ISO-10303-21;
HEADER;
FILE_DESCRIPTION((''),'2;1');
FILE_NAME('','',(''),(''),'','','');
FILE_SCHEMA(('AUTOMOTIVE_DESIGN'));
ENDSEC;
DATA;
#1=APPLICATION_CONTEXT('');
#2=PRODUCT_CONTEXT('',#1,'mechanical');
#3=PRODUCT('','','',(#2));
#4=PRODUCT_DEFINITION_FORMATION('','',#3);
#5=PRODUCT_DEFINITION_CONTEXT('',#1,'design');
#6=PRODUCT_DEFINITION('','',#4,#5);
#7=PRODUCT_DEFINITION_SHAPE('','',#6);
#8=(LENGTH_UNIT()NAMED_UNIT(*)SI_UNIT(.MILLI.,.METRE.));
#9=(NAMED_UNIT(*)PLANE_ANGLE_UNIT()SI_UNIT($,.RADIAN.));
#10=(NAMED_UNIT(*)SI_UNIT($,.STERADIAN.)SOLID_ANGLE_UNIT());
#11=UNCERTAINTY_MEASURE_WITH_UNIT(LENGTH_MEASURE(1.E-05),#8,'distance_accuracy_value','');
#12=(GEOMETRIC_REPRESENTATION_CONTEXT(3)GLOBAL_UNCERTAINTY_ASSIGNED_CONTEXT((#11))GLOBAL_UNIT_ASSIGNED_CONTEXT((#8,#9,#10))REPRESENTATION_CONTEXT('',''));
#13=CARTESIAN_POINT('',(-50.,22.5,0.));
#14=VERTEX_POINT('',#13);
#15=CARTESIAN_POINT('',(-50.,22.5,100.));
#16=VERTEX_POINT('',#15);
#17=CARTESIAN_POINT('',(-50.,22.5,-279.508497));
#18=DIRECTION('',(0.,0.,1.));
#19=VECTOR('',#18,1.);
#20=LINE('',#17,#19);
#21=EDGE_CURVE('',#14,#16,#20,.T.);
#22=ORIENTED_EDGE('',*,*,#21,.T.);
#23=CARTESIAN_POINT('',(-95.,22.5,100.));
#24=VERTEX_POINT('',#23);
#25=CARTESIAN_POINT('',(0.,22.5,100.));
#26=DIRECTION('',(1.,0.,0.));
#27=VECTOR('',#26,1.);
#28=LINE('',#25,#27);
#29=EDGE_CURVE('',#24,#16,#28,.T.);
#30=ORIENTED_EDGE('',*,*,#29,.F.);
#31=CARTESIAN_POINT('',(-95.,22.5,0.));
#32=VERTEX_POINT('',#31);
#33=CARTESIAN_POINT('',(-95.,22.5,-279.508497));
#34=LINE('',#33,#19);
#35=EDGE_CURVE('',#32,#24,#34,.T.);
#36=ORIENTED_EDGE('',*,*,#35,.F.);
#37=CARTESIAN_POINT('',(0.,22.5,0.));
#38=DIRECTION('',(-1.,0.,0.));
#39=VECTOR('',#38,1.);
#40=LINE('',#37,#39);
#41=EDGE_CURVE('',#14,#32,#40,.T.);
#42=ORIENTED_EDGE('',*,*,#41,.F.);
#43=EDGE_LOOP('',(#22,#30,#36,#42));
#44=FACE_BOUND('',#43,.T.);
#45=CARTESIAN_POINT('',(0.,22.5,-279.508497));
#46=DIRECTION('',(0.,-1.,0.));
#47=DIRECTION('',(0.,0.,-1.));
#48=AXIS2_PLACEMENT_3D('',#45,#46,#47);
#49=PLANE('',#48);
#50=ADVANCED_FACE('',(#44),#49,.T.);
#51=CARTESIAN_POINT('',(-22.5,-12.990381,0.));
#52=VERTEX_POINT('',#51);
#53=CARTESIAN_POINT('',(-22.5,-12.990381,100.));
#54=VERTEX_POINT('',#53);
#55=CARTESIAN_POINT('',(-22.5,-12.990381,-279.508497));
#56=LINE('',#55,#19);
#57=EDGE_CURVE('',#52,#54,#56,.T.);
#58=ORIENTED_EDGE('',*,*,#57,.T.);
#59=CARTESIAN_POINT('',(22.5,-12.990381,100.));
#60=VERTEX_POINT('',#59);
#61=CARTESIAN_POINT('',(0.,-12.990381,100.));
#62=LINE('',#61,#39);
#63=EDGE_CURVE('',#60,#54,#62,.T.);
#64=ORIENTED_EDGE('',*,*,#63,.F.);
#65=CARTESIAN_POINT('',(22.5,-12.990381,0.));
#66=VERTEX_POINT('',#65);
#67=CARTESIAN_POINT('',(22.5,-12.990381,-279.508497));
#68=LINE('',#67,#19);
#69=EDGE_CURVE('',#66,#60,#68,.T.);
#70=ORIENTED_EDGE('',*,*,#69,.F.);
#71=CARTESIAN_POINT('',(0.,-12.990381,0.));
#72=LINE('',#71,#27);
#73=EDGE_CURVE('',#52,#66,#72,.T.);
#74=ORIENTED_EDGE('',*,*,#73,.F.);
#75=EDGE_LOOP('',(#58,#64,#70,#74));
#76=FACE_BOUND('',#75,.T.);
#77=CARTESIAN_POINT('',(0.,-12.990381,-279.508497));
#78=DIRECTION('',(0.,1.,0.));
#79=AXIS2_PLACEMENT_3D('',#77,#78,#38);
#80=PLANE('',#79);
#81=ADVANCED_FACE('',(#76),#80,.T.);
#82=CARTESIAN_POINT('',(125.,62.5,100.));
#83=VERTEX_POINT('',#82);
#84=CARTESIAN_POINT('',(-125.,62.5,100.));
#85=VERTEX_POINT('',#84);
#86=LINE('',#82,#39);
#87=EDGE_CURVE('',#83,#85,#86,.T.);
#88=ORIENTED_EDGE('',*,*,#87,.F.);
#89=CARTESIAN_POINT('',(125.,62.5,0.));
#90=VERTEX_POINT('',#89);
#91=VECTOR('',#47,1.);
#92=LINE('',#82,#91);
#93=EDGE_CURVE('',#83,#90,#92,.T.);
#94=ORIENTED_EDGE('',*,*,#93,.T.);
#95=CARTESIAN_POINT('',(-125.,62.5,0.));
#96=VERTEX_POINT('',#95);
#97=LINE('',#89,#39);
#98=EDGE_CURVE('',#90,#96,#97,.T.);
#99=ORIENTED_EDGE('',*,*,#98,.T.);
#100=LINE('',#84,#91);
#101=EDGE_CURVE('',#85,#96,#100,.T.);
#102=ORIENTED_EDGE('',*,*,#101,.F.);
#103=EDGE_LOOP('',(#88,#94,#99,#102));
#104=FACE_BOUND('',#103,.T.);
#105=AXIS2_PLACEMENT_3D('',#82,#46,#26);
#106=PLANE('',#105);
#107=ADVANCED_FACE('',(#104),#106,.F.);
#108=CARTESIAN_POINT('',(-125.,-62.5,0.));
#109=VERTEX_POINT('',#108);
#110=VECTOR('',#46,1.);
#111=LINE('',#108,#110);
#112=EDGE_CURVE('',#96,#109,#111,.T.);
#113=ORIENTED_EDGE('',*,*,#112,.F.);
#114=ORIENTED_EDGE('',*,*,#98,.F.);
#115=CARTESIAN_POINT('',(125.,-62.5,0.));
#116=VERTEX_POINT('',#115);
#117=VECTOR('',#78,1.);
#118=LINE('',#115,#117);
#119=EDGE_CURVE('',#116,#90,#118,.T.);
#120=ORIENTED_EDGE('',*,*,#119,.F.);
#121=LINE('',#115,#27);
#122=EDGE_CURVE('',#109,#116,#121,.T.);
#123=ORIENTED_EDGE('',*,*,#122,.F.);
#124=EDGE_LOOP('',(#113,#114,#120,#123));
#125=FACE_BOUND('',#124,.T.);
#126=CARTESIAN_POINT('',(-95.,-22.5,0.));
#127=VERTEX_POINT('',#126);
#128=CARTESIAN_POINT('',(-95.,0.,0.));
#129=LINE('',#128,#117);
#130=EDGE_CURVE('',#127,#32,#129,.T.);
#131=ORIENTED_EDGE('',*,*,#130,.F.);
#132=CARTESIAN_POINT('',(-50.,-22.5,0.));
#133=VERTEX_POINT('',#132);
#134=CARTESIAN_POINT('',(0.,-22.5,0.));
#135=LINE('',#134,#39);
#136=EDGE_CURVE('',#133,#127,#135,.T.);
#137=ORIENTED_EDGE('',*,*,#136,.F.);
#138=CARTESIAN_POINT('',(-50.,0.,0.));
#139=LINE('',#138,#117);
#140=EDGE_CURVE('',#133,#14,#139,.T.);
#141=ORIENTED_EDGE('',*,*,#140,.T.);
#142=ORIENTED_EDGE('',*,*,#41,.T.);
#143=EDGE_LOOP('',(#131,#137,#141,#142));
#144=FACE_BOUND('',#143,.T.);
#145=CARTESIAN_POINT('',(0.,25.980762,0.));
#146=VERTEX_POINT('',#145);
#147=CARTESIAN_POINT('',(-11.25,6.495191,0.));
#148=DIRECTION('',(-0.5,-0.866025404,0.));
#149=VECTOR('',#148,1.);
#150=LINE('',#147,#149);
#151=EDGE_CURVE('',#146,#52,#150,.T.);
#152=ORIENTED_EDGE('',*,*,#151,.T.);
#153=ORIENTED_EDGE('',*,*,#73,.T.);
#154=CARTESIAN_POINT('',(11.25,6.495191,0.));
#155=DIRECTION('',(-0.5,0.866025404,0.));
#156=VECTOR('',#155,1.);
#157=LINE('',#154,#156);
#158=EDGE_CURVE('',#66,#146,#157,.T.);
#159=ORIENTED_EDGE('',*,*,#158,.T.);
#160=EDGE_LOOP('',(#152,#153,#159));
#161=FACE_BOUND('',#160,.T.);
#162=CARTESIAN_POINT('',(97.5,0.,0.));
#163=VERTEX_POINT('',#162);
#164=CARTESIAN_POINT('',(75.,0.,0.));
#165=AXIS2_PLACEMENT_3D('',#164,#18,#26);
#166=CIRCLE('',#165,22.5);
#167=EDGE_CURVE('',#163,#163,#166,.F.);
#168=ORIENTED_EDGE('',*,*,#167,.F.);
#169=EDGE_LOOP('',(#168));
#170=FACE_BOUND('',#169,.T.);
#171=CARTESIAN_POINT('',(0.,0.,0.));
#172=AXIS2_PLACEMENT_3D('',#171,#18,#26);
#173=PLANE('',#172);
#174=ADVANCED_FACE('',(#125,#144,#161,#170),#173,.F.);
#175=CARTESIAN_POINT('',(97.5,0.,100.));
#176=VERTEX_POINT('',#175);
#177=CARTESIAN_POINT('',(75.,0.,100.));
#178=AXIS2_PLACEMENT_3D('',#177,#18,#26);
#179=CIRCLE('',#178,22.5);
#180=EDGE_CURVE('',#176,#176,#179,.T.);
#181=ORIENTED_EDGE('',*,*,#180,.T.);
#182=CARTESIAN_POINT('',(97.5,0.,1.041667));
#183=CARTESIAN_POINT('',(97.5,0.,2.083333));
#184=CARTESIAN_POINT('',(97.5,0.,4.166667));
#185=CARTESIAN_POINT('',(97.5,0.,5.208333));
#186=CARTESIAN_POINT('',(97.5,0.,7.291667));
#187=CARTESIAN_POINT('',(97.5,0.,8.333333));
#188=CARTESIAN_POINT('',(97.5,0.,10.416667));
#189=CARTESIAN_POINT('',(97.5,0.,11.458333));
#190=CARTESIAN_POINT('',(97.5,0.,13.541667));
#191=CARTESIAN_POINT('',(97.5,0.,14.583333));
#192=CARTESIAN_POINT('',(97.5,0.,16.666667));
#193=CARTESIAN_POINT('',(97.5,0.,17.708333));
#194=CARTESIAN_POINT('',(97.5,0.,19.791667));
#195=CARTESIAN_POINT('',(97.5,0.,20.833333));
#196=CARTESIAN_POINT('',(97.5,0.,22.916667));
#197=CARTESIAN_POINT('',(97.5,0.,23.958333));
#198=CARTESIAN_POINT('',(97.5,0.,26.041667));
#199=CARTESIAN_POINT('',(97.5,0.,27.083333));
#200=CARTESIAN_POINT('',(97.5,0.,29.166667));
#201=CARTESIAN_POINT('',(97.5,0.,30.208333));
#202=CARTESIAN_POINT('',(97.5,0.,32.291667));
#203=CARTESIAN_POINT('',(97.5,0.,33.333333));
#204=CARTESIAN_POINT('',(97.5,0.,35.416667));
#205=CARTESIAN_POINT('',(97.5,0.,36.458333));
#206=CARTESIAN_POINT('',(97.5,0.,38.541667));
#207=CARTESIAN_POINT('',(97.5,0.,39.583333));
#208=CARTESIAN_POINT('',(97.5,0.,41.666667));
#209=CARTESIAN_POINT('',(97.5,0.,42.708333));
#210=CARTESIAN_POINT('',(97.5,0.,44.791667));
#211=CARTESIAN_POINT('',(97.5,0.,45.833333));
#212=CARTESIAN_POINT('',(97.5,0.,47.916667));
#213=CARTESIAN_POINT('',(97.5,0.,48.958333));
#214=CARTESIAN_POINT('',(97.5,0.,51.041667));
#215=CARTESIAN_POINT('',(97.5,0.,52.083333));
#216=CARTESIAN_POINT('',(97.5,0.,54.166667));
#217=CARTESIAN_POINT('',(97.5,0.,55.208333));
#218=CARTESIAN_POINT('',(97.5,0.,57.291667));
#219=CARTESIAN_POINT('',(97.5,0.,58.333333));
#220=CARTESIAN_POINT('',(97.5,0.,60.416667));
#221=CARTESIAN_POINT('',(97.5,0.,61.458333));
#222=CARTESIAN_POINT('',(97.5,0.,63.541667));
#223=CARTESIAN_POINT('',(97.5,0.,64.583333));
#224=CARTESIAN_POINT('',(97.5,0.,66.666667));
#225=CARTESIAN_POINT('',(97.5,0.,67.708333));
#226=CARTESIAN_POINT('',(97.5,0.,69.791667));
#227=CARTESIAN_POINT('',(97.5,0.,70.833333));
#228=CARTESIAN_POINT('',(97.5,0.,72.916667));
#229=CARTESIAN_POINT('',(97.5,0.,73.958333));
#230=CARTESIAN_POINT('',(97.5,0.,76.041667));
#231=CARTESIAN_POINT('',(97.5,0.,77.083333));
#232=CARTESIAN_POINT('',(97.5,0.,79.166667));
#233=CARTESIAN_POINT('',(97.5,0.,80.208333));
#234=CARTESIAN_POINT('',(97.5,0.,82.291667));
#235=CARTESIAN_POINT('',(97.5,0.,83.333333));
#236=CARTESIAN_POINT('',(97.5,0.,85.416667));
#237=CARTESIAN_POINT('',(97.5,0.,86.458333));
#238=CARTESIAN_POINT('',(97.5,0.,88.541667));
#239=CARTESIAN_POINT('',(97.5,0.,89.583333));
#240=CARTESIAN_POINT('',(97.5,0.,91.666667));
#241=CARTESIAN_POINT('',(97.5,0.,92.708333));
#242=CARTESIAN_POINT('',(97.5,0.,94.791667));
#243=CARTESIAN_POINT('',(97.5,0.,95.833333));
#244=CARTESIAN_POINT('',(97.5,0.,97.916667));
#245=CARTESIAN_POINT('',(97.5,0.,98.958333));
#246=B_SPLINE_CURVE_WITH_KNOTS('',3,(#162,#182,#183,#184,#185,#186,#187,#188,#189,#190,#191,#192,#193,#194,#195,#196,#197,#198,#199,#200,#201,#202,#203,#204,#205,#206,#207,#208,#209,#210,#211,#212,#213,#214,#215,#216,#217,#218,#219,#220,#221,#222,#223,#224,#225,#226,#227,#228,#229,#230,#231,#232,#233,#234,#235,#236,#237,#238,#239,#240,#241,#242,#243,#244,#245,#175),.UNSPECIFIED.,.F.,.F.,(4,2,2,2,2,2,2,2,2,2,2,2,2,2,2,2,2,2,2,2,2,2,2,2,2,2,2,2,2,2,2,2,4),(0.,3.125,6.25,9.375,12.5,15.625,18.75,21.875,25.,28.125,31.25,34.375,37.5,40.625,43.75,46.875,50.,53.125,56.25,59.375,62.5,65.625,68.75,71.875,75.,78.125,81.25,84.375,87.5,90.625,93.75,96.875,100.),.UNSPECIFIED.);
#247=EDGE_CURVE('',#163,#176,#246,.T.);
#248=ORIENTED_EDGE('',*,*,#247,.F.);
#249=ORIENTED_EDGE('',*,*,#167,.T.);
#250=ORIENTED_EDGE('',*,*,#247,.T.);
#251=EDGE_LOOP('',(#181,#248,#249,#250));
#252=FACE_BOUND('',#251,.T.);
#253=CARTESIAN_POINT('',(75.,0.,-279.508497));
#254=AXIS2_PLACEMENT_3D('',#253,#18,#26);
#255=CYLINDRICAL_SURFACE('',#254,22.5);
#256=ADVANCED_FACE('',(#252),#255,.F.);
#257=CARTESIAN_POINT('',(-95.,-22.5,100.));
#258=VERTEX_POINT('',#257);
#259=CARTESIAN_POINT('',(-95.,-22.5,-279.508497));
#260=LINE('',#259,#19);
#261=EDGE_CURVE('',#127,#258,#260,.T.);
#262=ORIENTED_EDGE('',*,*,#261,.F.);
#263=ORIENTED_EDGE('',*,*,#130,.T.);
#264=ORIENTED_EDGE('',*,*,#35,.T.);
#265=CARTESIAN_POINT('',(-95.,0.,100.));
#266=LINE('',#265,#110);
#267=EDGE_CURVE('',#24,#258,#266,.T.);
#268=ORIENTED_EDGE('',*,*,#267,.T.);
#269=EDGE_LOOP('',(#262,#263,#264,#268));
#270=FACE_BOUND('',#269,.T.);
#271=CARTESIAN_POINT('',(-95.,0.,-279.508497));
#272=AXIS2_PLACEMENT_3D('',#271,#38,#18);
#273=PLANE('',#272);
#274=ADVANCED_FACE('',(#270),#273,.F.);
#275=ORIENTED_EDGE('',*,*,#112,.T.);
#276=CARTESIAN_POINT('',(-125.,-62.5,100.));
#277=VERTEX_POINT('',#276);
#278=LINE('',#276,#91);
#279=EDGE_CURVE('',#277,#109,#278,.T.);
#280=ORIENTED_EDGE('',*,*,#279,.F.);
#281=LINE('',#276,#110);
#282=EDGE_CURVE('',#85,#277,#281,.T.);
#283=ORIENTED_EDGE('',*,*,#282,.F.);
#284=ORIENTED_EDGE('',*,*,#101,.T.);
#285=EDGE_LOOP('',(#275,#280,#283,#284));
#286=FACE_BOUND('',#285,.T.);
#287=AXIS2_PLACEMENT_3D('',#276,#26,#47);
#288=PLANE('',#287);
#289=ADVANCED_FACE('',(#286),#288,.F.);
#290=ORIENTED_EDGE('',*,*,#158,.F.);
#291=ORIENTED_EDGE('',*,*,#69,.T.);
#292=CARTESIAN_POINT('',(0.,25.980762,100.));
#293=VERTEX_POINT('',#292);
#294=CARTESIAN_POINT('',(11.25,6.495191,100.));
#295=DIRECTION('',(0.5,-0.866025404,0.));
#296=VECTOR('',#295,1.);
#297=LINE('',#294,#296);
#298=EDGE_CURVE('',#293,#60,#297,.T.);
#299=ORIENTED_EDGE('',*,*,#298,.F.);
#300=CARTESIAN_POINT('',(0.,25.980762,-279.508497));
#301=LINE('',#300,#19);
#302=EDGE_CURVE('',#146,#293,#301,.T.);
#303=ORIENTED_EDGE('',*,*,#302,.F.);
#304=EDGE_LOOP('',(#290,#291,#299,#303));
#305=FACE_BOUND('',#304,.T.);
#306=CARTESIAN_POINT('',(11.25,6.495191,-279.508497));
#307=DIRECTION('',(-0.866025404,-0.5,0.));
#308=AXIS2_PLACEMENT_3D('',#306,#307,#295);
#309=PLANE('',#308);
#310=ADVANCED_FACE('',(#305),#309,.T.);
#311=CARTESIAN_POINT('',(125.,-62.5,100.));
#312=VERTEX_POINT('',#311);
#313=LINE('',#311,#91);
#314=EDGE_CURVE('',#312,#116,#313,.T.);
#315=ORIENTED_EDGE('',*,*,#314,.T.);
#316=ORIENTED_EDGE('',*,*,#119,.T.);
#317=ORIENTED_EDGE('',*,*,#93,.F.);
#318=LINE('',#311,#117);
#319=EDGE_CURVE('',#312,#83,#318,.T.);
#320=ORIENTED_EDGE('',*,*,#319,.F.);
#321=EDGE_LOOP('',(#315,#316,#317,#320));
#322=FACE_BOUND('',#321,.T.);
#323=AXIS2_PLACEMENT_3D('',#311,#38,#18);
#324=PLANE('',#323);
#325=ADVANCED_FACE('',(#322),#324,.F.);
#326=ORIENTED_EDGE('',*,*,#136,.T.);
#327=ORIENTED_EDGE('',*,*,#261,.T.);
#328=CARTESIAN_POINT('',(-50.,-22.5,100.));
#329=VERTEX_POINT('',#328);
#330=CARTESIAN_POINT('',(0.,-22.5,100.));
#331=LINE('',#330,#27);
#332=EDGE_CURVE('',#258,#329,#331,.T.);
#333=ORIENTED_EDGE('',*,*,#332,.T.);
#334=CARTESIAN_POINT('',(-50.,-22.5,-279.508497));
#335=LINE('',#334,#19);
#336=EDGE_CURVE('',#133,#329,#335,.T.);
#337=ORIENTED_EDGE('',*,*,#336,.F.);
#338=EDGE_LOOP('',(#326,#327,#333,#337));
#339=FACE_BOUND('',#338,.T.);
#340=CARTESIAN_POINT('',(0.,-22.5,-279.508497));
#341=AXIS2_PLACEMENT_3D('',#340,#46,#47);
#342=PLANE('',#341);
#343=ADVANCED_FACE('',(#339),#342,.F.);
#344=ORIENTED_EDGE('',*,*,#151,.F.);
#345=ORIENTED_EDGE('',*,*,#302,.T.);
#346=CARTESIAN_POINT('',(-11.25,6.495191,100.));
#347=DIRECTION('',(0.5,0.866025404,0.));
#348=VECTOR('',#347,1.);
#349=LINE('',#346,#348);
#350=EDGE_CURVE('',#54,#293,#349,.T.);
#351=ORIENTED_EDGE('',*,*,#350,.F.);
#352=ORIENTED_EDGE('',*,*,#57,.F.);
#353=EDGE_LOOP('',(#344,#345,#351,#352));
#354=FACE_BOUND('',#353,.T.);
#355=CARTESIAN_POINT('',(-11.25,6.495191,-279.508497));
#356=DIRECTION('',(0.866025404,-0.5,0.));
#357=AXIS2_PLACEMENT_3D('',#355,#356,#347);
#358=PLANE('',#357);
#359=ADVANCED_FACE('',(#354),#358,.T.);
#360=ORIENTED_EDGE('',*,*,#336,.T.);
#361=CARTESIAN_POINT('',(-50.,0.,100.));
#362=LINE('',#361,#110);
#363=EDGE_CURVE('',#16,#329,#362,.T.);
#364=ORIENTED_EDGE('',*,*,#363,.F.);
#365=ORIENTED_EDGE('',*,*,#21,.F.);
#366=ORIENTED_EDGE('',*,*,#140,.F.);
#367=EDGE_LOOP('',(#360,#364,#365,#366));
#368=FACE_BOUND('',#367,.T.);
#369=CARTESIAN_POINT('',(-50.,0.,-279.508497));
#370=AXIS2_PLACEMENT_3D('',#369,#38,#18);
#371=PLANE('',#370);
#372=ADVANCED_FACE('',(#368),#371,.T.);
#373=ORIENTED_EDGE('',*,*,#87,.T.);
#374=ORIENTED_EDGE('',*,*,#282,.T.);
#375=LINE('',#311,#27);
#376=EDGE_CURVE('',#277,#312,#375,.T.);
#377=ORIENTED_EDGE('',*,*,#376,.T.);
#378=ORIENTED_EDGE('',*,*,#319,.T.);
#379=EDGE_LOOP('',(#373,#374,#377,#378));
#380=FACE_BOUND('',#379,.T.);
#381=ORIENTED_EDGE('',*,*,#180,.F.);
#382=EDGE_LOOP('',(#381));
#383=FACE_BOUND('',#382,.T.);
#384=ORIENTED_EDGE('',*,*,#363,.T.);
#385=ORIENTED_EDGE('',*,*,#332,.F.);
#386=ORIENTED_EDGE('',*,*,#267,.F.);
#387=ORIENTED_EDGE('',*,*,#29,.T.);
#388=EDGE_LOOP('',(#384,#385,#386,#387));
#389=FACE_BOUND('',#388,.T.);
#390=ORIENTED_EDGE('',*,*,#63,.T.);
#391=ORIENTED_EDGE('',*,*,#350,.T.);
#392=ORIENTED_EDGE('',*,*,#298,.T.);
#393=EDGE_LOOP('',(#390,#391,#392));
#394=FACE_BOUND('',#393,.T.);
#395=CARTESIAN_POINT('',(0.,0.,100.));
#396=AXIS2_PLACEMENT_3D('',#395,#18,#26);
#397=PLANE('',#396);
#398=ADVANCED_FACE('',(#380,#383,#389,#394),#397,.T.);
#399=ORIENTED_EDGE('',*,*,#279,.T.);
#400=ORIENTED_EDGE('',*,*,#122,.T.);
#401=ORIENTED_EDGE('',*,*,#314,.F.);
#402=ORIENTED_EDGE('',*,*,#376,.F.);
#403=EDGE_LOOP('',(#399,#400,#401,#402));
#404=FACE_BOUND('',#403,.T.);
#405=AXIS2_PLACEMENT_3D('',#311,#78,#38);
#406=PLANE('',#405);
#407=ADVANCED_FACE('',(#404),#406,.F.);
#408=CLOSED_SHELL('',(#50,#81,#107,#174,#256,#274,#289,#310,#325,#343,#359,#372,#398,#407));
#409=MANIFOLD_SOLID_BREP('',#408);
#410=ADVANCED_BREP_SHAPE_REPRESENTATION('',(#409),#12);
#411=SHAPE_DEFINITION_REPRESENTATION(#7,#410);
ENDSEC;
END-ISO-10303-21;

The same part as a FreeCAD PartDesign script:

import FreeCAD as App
import Part
import Sketcher

V = App.Vector
Q = App.Units.Quantity


def add_polygon(sketch, points):
    """Adds a closed chain of lines whose ends are joined by coincident constraints."""
    first, n = sketch.GeometryCount, len(points)
    for a, b in zip(points, points[1:] + points[:1]):
        sketch.addGeometry(Part.LineSegment(App.Vector(*a, 0), App.Vector(*b, 0)), False)
    for i in range(n):
        sketch.addConstraint(Sketcher.Constraint("Coincident", first + i, 2, first + (i + 1) % n, 1))

doc = App.newDocument("Part")
body = doc.addObject("PartDesign::Body", "Body")

# Sketch on XY plane
sketch1 = body.newObject("Sketcher::SketchObject", "Sketch")
sketch1.AttachmentSupport = (doc.getObject("XY_Plane"), [""])
sketch1.MapMode = "FlatFace"
add_polygon(sketch1, [(-125, 62), (-125, -62), (125, -62), (125, 62)])  # lines 0-3
add_polygon(sketch1, [(115, -58), (-115, -58), (-115, 58), (115, 58)])  # lines 4-7
sketch1.addConstraint([
    Sketcher.Constraint("Vertical", 0),
    Sketcher.Constraint("Horizontal", 1),
    Sketcher.Constraint("Vertical", 2),
    Sketcher.Constraint("Horizontal", 3),
    Sketcher.Constraint("Horizontal", 4),
    Sketcher.Constraint("Vertical", 5),
    Sketcher.Constraint("Horizontal", 6),
    Sketcher.Constraint("Vertical", 7),
    Sketcher.Constraint("Symmetric", 0, 2, 2, 2, -1, 1),
    Sketcher.Constraint("Symmetric", 4, 2, 6, 2, -1, 1),
    Sketcher.Constraint("DistanceX", 1, 1, 1, 2, Q("250 mm")),
    Sketcher.Constraint("DistanceX", 4, 2, 4, 1, Q("230 mm")),
    Sketcher.Constraint("DistanceY", 0, 2, 0, 1, Q("125 mm")),
    Sketcher.Constraint("DistanceY", 5, 1, 5, 2, Q("115 mm")),
])
pad1 = body.newObject("PartDesign::Pad", "Pad")
pad1.Profile = sketch1
pad1.Length = 100

# Sketch on XY plane
sketch2 = body.newObject("Sketcher::SketchObject", "Sketch001")
sketch2.AttachmentSupport = (doc.getObject("XY_Plane"), [""])
sketch2.MapMode = "FlatFace"
sketch2.AttachmentOffset = App.Placement(V(0, 0, 100), App.Rotation())
add_polygon(sketch2, [(-125, 62), (-125, -62), (125, -62), (125, 62)])  # lines 0-3
sketch2.addGeometry(Part.Circle(V(75, 0, 0), V(0, 0, 1), 22), False)  # 4
add_polygon(sketch2, [(0, 26), (22, -13), (-22, -13)])  # lines 5-7
add_polygon(sketch2, [(-50, -22), (-95, -22), (-95, 22), (-50, 22)])  # lines 8-11
sketch2.addConstraint([
    Sketcher.Constraint("Vertical", 0),
    Sketcher.Constraint("Horizontal", 1),
    Sketcher.Constraint("Vertical", 2),
    Sketcher.Constraint("Horizontal", 3),
    Sketcher.Constraint("Horizontal", 6),
    Sketcher.Constraint("Horizontal", 8),
    Sketcher.Constraint("Vertical", 9),
    Sketcher.Constraint("Horizontal", 10),
    Sketcher.Constraint("Vertical", 11),
    Sketcher.Constraint("Symmetric", 0, 2, 2, 2, -1, 1),
    Sketcher.Constraint("PointOnObject", 4, 3, -1),
    Sketcher.Constraint("PointOnObject", 7, 2, -2),
    Sketcher.Constraint("Equal", 6, 8),
    Sketcher.Constraint("Equal", 10, 9),
    Sketcher.Constraint("Equal", 5, 7),
    Sketcher.Constraint("Diameter", 4, Q("45 mm")),
    Sketcher.Constraint("DistanceX", 1, 1, 1, 2, Q("250 mm")),
    Sketcher.Constraint("DistanceX", 6, 2, 6, 1, Q("45 mm")),
    Sketcher.Constraint("DistanceY", 0, 2, 0, 1, Q("125 mm")),
    Sketcher.Constraint("Angle", 5, Q("-60 deg")),
    Sketcher.Constraint("DistanceX", -1, 1, 4, 3, Q("75 mm")),
    Sketcher.Constraint("DistanceX", 8, 2, -1, 1, Q("95 mm")),
    Sketcher.Constraint("DistanceY", 0, 2, 8, 2, Q("40 mm")),
    Sketcher.Constraint("DistanceY", 5, 2, -1, 1, Q("12.990381 mm")),
])
pad2 = body.newObject("PartDesign::Pad", "Pad001")
pad2.Profile = sketch2
pad2.Length = 100
pad2.Reversed = True

doc.recompute()
